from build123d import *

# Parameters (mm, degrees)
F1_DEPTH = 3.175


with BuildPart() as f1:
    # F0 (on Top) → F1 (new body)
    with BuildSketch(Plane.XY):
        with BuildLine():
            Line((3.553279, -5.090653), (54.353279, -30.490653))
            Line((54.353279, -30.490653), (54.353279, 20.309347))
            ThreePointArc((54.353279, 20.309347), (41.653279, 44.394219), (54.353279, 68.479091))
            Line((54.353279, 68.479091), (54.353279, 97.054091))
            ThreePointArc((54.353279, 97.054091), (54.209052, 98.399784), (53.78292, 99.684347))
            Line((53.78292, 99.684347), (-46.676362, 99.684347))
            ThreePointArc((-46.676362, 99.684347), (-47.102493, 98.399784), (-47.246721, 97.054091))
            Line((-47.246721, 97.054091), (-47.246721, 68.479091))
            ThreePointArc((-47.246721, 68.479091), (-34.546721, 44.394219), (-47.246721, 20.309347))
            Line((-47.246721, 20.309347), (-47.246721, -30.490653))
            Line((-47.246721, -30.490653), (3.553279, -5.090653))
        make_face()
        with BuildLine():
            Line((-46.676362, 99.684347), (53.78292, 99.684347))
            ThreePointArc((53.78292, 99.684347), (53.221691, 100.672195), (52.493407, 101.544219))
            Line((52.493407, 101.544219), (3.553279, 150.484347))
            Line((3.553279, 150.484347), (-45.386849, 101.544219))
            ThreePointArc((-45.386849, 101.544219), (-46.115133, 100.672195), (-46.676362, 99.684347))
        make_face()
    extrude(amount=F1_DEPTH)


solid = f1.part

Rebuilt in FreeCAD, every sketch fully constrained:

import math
import FreeCAD as App
import Part
import Sketcher

V = App.Vector
Q = App.Units.Quantity

doc = App.newDocument("Part")
params = doc.addObject("Spreadsheet::Sheet", "Params")
for row, (alias, value) in enumerate([
    ("sketch1_height", "2 in"),
    ("sketch1_height2", "2 in"),
    ("sketch1_height3", "1.125 in"),
    ("sketch1_height4", "1.125 in"),
    ("pad1_length", "0.125 in"),
], start=1):
    params.set(f"A{row}", alias)
    params.set(f"B{row}", "=" + value)
    params.setAlias(f"B{row}", alias)

body = doc.addObject("PartDesign::Body", "Body")

# Sketch on XY plane
sketch1 = body.newObject("Sketcher::SketchObject", "Sketch")
sketch1.AttachmentSupport = (doc.getObject("XY_Plane"), [""])
sketch1.MapMode = "FlatFace"
sketch1.addGeometry(Part.LineSegment(V(3.553279, -5.090653, 0), V(54.353279, -30.490653, 0)), False)
sketch1.addGeometry(Part.LineSegment(V(54.353279, -30.490653, 0), V(54.353279, 20.309347, 0)), False)
sketch1.addGeometry(Part.ArcOfCircle(Part.Circle(V(70.841116, 44.394219, 0), V(0, 0, 1), 29.187837), math.radians(124.394462), math.radians(235.605538)), False)
sketch1.addGeometry(Part.LineSegment(V(54.353279, 68.479091, 0), V(54.353279, 97.054091, 0)), False)
sketch1.addGeometry(Part.ArcOfCircle(Part.Circle(V(48.003312, 97.054098, 0), V(0, 0, 1), 6.349967), math.radians(-0.00006), math.radians(24.469871)), False)
sketch1.addGeometry(Part.ArcOfCircle(Part.Circle(V(48.003289, 97.054099, 0), V(0, 0, 1), 6.349988), math.radians(24.469776), math.radians(45.000016)), False)
sketch1.addGeometry(Part.LineSegment(V(52.493407, 101.544219, 0), V(3.553279, 150.484347, 0)), False)
sketch1.addGeometry(Part.LineSegment(V(3.553279, 150.484347, 0), V(-45.386849, 101.544219, 0)), False)
sketch1.addGeometry(Part.ArcOfCircle(Part.Circle(V(-40.896731, 97.054099, 0), V(0, 0, 1), 6.349988), math.radians(134.999984), math.radians(155.530224)), False)
sketch1.addGeometry(Part.ArcOfCircle(Part.Circle(V(-40.896712, 97.054089, 0), V(0, 0, 1), 6.350009), math.radians(155.530211), math.radians(179.999977)), False)
sketch1.addGeometry(Part.LineSegment(V(-47.246721, 97.054091, 0), V(-47.246721, 68.479091, 0)), False)
sketch1.addGeometry(Part.ArcOfCircle(Part.Circle(V(-63.734558, 44.394219, 0), V(0, 0, 1), 29.187837), math.radians(-55.605538), math.radians(55.605538)), False)
sketch1.addGeometry(Part.LineSegment(V(-47.246721, 20.309347, 0), V(-47.246721, -30.490653, 0)), False)
sketch1.addGeometry(Part.LineSegment(V(-47.246721, -30.490653, 0), V(3.553279, -5.090653, 0)), False)
sketch1.addConstraint(Sketcher.Constraint("Coincident", 0, 2, 1, 1))
sketch1.addConstraint(Sketcher.Constraint("Coincident", 1, 2, 2, 2))
sketch1.addConstraint(Sketcher.Constraint("Coincident", 2, 1, 3, 1))
sketch1.addConstraint(Sketcher.Constraint("Coincident", 3, 2, 4, 1))
sketch1.addConstraint(Sketcher.Constraint("Coincident", 4, 2, 5, 1))
sketch1.addConstraint(Sketcher.Constraint("Coincident", 5, 2, 6, 1))
sketch1.addConstraint(Sketcher.Constraint("Coincident", 6, 2, 7, 1))
sketch1.addConstraint(Sketcher.Constraint("Coincident", 7, 2, 8, 1))
sketch1.addConstraint(Sketcher.Constraint("Coincident", 8, 2, 9, 1))
sketch1.addConstraint(Sketcher.Constraint("Coincident", 9, 2, 10, 1))
sketch1.addConstraint(Sketcher.Constraint("Coincident", 10, 2, 11, 2))
sketch1.addConstraint(Sketcher.Constraint("Coincident", 11, 1, 12, 1))
sketch1.addConstraint(Sketcher.Constraint("Coincident", 12, 2, 13, 1))
sketch1.addConstraint(Sketcher.Constraint("Coincident", 13, 2, 0, 1))
sketch1.addConstraint(Sketcher.Constraint("Vertical", 1))
sketch1.addConstraint(Sketcher.Constraint("Vertical", 3))
sketch1.addConstraint(Sketcher.Constraint("Vertical", 10))
sketch1.addConstraint(Sketcher.Constraint("Vertical", 12))
sketch1.addConstraint(Sketcher.Constraint("DistanceY", 1, 1, 1, 2, Q("2 in")))
sketch1.addConstraint(Sketcher.Constraint("DistanceY", 12, 2, 12, 1, Q("2 in")))
sketch1.addConstraint(Sketcher.Constraint("DistanceY", 8, 2, 6, 2, Q("2 in")))
sketch1.addConstraint(Sketcher.Constraint("DistanceX", 12, 2, 0, 2, Q("4 in")))
sketch1.addConstraint(Sketcher.Constraint("DistanceY", 12, 2, 1, 2, Q("2 in")))
sketch1.addConstraint(Sketcher.Constraint("DistanceX", 11, 1, 13, 2, Q("2 in")))
sketch1.addConstraint(Sketcher.Constraint("DistanceY", 13, 2, 11, 1, Q("1 in")))
sketch1.addConstraint(Sketcher.Constraint("DistanceX", 9, 3, 5, 3, Q("3.5000001 in")))
sketch1.addConstraint(Sketcher.Constraint("DistanceY", 3, 1, 3, 2, Q("1.125 in")))
sketch1.addConstraint(Sketcher.Constraint("DistanceY", 10, 2, 10, 1, Q("1.125 in")))
sketch1.addConstraint(Sketcher.Constraint("DistanceY", 11, 3, 7, 2, Q("2.25 in")))
sketch1.addConstraint(Sketcher.Constraint("Radius", 9, 6.350009))
sketch1.addConstraint(Sketcher.Constraint("DistanceY", 10, 2, 9, 3, Q("1.1249999 in")))
sketch1.addConstraint(Sketcher.Constraint("Radius", 2, 29.187837))
sketch1.addConstraint(Sketcher.Constraint("Radius", 4, 6.349967))
sketch1.addConstraint(Sketcher.Constraint("Radius", 5, 6.349988))
sketch1.addConstraint(Sketcher.Constraint("Radius", 8, 6.349988))
sketch1.addConstraint(Sketcher.Constraint("Radius", 11, 29.187837))
sketch1.addConstraint(Sketcher.Constraint("DistanceY", -1, 1, 5, 3, 97.054099))
sketch1.addConstraint(Sketcher.Constraint("DistanceY", -1, 1, 8, 3, 97.054099))
sketch1.addConstraint(Sketcher.Constraint("DistanceY", -1, 1, 2, 3, 44.394219))
sketch1.addConstraint(Sketcher.Constraint("DistanceX", -1, 1, 5, 3, 48.003289))
sketch1.addConstraint(Sketcher.Constraint("DistanceX", 8, 3, -1, 1, 40.896731))
sketch1.addConstraint(Sketcher.Constraint("DistanceY", -1, 1, 11, 3, 44.394219))
sketch1.addConstraint(Sketcher.Constraint("DistanceX", -1, 1, 0, 2, 54.353279))
sketch1.addConstraint(Sketcher.Constraint("DistanceX", -1, 1, 2, 1, 54.353279))
sketch1.addConstraint(Sketcher.Constraint("DistanceX", -1, 1, 4, 2, 53.78292))
sketch1.addConstraint(Sketcher.Constraint("DistanceY", -1, 1, 5, 2, 101.544219))
sketch1.addConstraint(Sketcher.Constraint("DistanceX", -1, 1, 6, 2, 3.553279))
sketch1.addConstraint(Sketcher.Constraint("DistanceX", 8, 2, -1, 1, 46.676362))
sketch1.setExpression("Constraints[18]", "Params.sketch1_height")
sketch1.setExpression("Constraints[19]", "Params.sketch1_height2")
sketch1.setExpression("Constraints[26]", "Params.sketch1_height3")
sketch1.setExpression("Constraints[27]", "Params.sketch1_height4")
pad1 = body.newObject("PartDesign::Pad", "Pad")
pad1.Profile = sketch1
pad1.setExpression("Length", "Params.pad1_length")

doc.recompute()
